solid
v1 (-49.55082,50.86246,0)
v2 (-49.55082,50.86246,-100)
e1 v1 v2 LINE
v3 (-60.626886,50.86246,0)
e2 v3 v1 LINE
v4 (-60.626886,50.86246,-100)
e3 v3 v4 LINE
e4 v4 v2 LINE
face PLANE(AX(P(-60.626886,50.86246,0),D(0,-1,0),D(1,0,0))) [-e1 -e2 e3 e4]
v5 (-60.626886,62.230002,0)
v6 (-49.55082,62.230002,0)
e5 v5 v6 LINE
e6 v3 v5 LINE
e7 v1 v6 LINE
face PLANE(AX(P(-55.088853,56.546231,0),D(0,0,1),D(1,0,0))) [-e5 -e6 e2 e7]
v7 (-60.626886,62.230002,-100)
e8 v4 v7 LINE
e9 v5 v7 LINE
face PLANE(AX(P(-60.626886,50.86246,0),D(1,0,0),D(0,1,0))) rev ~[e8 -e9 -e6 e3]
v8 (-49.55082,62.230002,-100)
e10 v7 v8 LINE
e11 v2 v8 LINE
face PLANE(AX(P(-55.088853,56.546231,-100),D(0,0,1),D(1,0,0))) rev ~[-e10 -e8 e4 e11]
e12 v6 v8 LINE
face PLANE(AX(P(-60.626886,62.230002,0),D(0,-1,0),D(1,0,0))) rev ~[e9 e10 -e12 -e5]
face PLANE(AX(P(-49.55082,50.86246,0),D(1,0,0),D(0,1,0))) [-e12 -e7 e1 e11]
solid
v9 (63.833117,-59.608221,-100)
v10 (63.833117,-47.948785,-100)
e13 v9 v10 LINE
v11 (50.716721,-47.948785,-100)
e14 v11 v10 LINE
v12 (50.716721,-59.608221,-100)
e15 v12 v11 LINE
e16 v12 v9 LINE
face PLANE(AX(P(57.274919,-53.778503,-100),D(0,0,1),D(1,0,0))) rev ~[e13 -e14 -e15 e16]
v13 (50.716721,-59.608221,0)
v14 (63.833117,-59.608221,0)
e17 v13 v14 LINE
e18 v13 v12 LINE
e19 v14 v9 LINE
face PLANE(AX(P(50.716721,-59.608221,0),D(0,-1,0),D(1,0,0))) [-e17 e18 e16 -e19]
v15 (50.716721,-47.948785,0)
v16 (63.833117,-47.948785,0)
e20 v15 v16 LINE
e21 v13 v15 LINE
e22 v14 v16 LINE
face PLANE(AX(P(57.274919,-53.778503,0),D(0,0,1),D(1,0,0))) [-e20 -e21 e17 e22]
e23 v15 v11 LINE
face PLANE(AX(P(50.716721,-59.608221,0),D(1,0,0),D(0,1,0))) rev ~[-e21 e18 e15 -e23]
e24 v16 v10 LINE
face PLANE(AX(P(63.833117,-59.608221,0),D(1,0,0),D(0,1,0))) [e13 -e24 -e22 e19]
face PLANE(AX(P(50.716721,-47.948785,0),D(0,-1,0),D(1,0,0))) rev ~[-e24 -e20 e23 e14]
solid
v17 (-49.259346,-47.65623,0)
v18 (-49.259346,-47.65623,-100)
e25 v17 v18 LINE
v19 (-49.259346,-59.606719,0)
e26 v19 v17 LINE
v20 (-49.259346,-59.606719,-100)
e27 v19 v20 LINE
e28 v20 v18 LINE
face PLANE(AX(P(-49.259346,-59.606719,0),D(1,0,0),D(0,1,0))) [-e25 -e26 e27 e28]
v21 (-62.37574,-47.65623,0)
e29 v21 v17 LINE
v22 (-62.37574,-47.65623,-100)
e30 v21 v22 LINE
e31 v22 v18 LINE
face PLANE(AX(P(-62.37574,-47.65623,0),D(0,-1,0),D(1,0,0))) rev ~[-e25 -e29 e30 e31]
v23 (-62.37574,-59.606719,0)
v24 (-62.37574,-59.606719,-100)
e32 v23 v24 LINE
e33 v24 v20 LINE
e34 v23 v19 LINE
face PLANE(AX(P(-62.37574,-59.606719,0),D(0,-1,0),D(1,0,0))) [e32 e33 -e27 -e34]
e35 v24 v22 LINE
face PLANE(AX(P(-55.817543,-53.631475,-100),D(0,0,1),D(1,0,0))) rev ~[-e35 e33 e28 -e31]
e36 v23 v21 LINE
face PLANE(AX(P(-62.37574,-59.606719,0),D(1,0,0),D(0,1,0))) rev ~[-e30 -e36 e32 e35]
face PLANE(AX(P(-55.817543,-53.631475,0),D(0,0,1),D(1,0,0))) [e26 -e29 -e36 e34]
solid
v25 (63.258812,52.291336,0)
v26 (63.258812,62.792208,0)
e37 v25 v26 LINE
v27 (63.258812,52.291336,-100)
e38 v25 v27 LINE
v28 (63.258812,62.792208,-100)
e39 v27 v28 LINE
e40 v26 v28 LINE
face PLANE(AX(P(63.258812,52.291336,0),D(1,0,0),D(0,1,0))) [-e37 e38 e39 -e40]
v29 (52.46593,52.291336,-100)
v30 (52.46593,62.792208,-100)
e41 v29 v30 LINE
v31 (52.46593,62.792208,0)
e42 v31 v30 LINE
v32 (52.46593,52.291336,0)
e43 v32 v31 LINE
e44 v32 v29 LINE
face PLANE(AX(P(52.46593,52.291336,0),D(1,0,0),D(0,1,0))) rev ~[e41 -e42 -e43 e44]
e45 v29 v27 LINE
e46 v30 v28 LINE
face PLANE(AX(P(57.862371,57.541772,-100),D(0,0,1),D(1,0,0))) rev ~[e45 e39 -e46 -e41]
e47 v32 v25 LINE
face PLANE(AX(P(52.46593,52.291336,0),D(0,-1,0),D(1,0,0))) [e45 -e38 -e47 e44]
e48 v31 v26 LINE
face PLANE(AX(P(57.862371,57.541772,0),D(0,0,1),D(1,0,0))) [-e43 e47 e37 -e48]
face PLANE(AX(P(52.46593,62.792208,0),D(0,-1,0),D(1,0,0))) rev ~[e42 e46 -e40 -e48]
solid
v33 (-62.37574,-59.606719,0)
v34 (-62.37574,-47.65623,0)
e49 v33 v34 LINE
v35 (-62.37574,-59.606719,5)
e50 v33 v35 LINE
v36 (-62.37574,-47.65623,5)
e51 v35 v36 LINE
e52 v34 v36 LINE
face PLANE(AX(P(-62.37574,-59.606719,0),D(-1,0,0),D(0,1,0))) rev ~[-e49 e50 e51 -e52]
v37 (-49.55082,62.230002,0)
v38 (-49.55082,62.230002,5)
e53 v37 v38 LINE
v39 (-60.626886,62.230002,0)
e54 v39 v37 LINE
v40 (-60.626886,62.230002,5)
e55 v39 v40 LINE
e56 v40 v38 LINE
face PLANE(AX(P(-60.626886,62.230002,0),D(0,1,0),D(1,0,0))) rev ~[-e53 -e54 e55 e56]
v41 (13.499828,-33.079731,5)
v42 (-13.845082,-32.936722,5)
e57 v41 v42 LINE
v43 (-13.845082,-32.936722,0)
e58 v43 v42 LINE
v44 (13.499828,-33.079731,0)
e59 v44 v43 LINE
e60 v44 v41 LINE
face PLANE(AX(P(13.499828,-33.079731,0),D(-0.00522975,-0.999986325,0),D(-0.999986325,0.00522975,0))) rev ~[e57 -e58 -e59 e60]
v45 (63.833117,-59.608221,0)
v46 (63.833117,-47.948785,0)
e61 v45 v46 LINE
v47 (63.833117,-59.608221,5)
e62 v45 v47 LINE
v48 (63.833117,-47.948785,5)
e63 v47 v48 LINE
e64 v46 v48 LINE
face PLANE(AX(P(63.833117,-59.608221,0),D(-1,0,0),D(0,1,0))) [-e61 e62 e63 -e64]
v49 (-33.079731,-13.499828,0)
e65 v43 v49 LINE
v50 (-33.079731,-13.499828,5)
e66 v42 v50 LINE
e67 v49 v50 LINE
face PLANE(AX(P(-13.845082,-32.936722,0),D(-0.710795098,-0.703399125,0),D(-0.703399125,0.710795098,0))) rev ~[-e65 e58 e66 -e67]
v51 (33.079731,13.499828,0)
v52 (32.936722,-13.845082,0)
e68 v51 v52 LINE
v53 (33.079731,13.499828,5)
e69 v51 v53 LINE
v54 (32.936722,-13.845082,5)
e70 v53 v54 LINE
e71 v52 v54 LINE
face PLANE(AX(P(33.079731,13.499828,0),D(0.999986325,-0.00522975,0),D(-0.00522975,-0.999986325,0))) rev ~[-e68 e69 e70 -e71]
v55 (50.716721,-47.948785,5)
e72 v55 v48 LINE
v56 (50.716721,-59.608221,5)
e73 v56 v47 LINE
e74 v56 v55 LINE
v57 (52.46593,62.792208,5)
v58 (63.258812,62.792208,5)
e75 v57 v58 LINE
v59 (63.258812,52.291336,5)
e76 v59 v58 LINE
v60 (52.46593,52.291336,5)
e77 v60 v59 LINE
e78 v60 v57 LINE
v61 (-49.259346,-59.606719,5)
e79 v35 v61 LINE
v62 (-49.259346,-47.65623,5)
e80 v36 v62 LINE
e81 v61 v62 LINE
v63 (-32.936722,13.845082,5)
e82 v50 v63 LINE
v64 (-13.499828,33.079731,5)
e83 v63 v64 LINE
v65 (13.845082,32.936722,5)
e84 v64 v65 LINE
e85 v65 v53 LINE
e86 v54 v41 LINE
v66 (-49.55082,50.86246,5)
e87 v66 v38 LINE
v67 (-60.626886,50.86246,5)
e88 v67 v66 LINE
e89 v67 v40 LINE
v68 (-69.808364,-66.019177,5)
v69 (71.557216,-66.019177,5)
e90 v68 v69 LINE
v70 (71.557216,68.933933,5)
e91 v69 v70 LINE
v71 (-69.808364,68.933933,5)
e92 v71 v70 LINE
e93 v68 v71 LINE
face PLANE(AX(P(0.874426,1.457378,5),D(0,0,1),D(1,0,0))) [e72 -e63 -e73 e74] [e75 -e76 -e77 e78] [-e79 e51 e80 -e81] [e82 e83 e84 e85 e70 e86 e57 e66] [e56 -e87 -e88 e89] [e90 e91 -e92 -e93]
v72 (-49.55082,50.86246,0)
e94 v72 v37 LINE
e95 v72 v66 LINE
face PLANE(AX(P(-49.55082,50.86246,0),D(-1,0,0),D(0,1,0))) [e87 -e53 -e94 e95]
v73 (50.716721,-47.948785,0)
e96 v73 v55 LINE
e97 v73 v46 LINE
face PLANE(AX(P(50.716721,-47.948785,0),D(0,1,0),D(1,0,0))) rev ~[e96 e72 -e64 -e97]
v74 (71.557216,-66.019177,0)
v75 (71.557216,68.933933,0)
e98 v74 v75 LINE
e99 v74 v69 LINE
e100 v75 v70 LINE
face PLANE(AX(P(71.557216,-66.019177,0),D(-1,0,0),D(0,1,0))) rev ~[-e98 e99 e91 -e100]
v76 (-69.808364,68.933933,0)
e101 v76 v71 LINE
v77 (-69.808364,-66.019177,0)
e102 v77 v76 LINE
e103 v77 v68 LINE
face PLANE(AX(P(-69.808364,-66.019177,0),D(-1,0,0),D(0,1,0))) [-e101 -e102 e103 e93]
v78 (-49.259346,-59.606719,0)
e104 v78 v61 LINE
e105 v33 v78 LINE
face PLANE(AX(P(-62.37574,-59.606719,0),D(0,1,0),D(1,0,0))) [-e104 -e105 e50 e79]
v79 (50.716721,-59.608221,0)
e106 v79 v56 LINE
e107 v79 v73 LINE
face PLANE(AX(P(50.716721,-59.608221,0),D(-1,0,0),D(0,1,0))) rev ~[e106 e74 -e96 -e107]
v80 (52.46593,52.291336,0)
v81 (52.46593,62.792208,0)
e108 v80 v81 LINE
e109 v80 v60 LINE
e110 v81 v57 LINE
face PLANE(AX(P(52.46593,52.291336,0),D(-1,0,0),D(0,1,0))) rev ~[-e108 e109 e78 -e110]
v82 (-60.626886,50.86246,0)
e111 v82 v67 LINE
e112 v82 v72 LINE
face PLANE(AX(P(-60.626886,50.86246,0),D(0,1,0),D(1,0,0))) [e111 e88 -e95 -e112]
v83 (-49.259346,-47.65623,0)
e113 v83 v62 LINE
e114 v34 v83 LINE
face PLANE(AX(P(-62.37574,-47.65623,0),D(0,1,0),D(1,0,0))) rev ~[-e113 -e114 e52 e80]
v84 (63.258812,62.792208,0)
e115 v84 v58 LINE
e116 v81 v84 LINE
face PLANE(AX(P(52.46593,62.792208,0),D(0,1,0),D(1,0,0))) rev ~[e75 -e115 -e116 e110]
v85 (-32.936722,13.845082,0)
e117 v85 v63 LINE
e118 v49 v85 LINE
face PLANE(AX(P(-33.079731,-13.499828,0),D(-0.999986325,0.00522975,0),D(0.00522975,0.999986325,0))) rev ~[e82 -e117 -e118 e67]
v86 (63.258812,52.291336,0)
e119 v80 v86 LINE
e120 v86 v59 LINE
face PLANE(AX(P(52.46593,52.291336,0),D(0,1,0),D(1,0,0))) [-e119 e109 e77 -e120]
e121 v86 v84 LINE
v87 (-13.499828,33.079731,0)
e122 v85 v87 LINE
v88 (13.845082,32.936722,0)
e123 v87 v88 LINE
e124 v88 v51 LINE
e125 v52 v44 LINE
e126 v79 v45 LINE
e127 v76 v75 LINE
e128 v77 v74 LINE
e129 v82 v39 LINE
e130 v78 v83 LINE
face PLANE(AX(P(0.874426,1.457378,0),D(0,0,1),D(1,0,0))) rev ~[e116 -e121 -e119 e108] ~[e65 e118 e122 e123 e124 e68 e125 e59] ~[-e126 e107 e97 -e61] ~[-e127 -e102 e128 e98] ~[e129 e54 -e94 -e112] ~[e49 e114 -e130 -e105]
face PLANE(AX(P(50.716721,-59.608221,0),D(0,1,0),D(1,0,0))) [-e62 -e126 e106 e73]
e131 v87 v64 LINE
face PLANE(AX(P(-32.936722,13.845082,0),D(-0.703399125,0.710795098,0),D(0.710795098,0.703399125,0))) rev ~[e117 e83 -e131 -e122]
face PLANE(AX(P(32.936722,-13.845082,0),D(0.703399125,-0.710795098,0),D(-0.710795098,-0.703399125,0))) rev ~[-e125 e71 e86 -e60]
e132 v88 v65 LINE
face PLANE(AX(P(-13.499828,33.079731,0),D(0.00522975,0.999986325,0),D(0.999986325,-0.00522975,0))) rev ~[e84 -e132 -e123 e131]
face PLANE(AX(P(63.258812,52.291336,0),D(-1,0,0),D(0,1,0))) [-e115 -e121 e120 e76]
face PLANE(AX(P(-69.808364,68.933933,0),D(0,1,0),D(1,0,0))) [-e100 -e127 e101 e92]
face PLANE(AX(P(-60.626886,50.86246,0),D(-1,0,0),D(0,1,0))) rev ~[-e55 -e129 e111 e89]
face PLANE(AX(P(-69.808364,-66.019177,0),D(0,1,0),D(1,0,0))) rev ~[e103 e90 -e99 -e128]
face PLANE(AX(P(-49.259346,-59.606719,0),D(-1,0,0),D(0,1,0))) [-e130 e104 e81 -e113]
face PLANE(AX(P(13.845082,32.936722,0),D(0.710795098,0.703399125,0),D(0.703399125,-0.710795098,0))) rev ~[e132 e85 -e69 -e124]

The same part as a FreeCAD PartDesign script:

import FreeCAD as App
import Part
import Sketcher

V = App.Vector


def add_polygon(sketch, points):
    """Adds a closed chain of lines whose ends are joined by coincident constraints."""
    first, n = sketch.GeometryCount, len(points)
    for a, b in zip(points, points[1:] + points[:1]):
        sketch.addGeometry(Part.LineSegment(App.Vector(*a, 0), App.Vector(*b, 0)), False)
    for i in range(n):
        sketch.addConstraint(Sketcher.Constraint("Coincident", first + i, 2, first + (i + 1) % n, 1))

doc = App.newDocument("Part")
body = doc.addObject("PartDesign::Body", "Body")

# Sketch on XY plane
sketch1 = doc.addObject("Sketcher::SketchObject", "Sketch")
body.addObject(sketch1)
sketch1.AttachmentSupport = (doc.XY_Plane, [""])
sketch1.MapMode = "FlatFace"
add_polygon(sketch1, [(-70, 69), (-70, -66), (72, -66), (72, 69)])  # lines 0-3
add_polygon(sketch1, [(-49, -60), (-62, -60), (-62, -48), (-49, -48)])  # lines 4-7
add_polygon(sketch1, [(-33, -13), (-33, 14), (-13, 33), (14, 33), (33, 13), (33, -14), (13, -33), (-14, -33)])  # lines 8-15
add_polygon(sketch1, [(64, -60), (51, -60), (51, -48), (64, -48)])  # lines 16-19
add_polygon(sketch1, [(-50, 51), (-61, 51), (-61, 62), (-50, 62)])  # lines 20-23
add_polygon(sketch1, [(63, 52), (52, 52), (52, 63), (63, 63)])  # lines 24-27
sketch1.addConstraint([
    Sketcher.Constraint("Vertical", 0),
    Sketcher.Constraint("Horizontal", 1),
    Sketcher.Constraint("Vertical", 2),
    Sketcher.Constraint("Horizontal", 3),
    Sketcher.Constraint("Horizontal", 4),
    Sketcher.Constraint("Vertical", 5),
    Sketcher.Constraint("Horizontal", 6),
    Sketcher.Constraint("Vertical", 7),
    Sketcher.Constraint("Horizontal", 16),
    Sketcher.Constraint("Vertical", 17),
    Sketcher.Constraint("Horizontal", 18),
    Sketcher.Constraint("Vertical", 19),
    Sketcher.Constraint("Horizontal", 20),
    Sketcher.Constraint("Vertical", 21),
    Sketcher.Constraint("Horizontal", 22),
    Sketcher.Constraint("Vertical", 23),
    Sketcher.Constraint("Horizontal", 24),
    Sketcher.Constraint("Vertical", 25),
    Sketcher.Constraint("Horizontal", 26),
    Sketcher.Constraint("Vertical", 27),
    Sketcher.Constraint("Symmetric", 8, 2, 12, 2, -1, 1),
    Sketcher.Constraint("Symmetric", 9, 2, 13, 2, -1, 1),
    Sketcher.Constraint("Symmetric", 10, 2, 14, 2, -1, 1),
    Sketcher.Constraint("Symmetric", 11, 2, 15, 2, -1, 1),
    Sketcher.Constraint("Perpendicular", 8, 10),
    Sketcher.Constraint("Perpendicular", 9, 11),
    Sketcher.Constraint("Equal", 8, 9),
    Sketcher.Constraint("Equal", 9, 10),
    Sketcher.Constraint("Equal", 10, 11),
    Sketcher.Constraint("DistanceY", -1, 1, 21, 2, 62.230002),
    Sketcher.Constraint("DistanceX", 12, 2, 16, 2, 17.779999),
    Sketcher.Constraint("DistanceX", 1, 1, 1, 2, 141.36558),
    Sketcher.Constraint("DistanceX", 24, 2, 24, 1, 10.792881),
    Sketcher.Constraint("DistanceY", 0, 2, 0, 1, 134.953111),
    Sketcher.Constraint("DistanceY", 5, 1, 5, 2, 11.950489),
    Sketcher.Constraint("DistanceY", 21, 1, 21, 2, 11.367541),
    Sketcher.Constraint("DistanceY", 25, 1, 25, 2, 10.500871),
    Sketcher.Constraint("DistanceY", 7, 2, 8, 2, 73.451802),
    Sketcher.Constraint("DistanceY", 6, 2, 13, 2, 14.576499),
    Sketcher.Constraint("DistanceY", 16, 2, 14, 2, 26.671499),
    Sketcher.Constraint("DistanceX", 18, 2, 1, 2, 7.724099),
    Sketcher.Constraint("DistanceX", 11, 2, 24, 2, 19.386199),
    Sketcher.Constraint("DistanceX", 4, 2, 4, 1, 13.116393),
    Sketcher.Constraint("DistanceX", 16, 2, 16, 1, 13.116396),
    Sketcher.Constraint("DistanceX", 20, 2, 20, 1, 11.076067),
    Sketcher.Constraint("DistanceY", 17, 1, 17, 2, 11.659436),
    Sketcher.Constraint("DistanceX", 4, 2, -1, 1, 62.37574),
    Sketcher.Constraint("DistanceY", 4, 2, -1, 1, 59.606719),
    Sketcher.Constraint("DistanceX", 9, 2, -1, 1, 13.499828),
    Sketcher.Constraint("DistanceX", 22, 2, -1, 1, 49.55082),
    Sketcher.Constraint("DistanceY", 0, 2, 4, 2, 6.412458),
    Sketcher.Constraint("DistanceY", 11, 2, 24, 2, 38.791508),
])
pad1 = doc.addObject("PartDesign::Pad", "Pad")
body.addObject(pad1)
pad1.Profile = sketch1
pad1.Length = 5

# Sketch on XY plane
sketch2 = doc.addObject("Sketcher::SketchObject", "Sketch001")
body.addObject(sketch2)
sketch2.AttachmentSupport = (doc.XY_Plane, [""])
sketch2.MapMode = "FlatFace"
add_polygon(sketch2, [(-70, 69), (-70, -66), (72, -66), (72, 69)])  # lines 0-3
add_polygon(sketch2, [(-49, -60), (-62, -60), (-62, -48), (-49, -48)])  # lines 4-7
add_polygon(sketch2, [(-33, -13), (-33, 14), (-13, 33), (14, 33), (33, 13), (33, -14), (13, -33), (-14, -33)])  # lines 8-15
add_polygon(sketch2, [(64, -60), (51, -60), (51, -48), (64, -48)])  # lines 16-19
add_polygon(sketch2, [(-50, 51), (-61, 51), (-61, 62), (-50, 62)])  # lines 20-23
add_polygon(sketch2, [(63, 52), (52, 52), (52, 63), (63, 63)])  # lines 24-27
sketch2.addConstraint([
    Sketcher.Constraint("Vertical", 0),
    Sketcher.Constraint("Horizontal", 1),
    Sketcher.Constraint("Vertical", 2),
    Sketcher.Constraint("Horizontal", 3),
    Sketcher.Constraint("Horizontal", 4),
    Sketcher.Constraint("Vertical", 5),
    Sketcher.Constraint("Horizontal", 6),
    Sketcher.Constraint("Vertical", 7),
    Sketcher.Constraint("Horizontal", 16),
    Sketcher.Constraint("Vertical", 17),
    Sketcher.Constraint("Horizontal", 18),
    Sketcher.Constraint("Vertical", 19),
    Sketcher.Constraint("Horizontal", 20),
    Sketcher.Constraint("Vertical", 21),
    Sketcher.Constraint("Horizontal", 22),
    Sketcher.Constraint("Vertical", 23),
    Sketcher.Constraint("Horizontal", 24),
    Sketcher.Constraint("Vertical", 25),
    Sketcher.Constraint("Horizontal", 26),
    Sketcher.Constraint("Vertical", 27),
    Sketcher.Constraint("Symmetric", 8, 2, 12, 2, -1, 1),
    Sketcher.Constraint("Symmetric", 9, 2, 13, 2, -1, 1),
    Sketcher.Constraint("Symmetric", 10, 2, 14, 2, -1, 1),
    Sketcher.Constraint("Symmetric", 11, 2, 15, 2, -1, 1),
    Sketcher.Constraint("Perpendicular", 8, 10),
    Sketcher.Constraint("Perpendicular", 9, 11),
    Sketcher.Constraint("Equal", 8, 9),
    Sketcher.Constraint("Equal", 9, 10),
    Sketcher.Constraint("Equal", 10, 11),
    Sketcher.Constraint("DistanceY", -1, 1, 21, 2, 62.230002),
    Sketcher.Constraint("DistanceX", 12, 2, 16, 2, 17.779999),
    Sketcher.Constraint("DistanceX", 1, 1, 1, 2, 141.36558),
    Sketcher.Constraint("DistanceX", 24, 2, 24, 1, 10.792881),
    Sketcher.Constraint("DistanceY", 0, 2, 0, 1, 134.953111),
    Sketcher.Constraint("DistanceY", 5, 1, 5, 2, 11.950489),
    Sketcher.Constraint("DistanceY", 21, 1, 21, 2, 11.367541),
    Sketcher.Constraint("DistanceY", 25, 1, 25, 2, 10.500871),
    Sketcher.Constraint("DistanceY", 7, 2, 8, 2, 73.451802),
    Sketcher.Constraint("DistanceY", 6, 2, 13, 2, 14.576499),
    Sketcher.Constraint("DistanceY", 16, 2, 14, 2, 26.671499),
    Sketcher.Constraint("DistanceX", 18, 2, 1, 2, 7.724099),
    Sketcher.Constraint("DistanceX", 11, 2, 24, 2, 19.386199),
    Sketcher.Constraint("DistanceX", 4, 2, 4, 1, 13.116393),
    Sketcher.Constraint("DistanceX", 16, 2, 16, 1, 13.116396),
    Sketcher.Constraint("DistanceX", 20, 2, 20, 1, 11.076067),
    Sketcher.Constraint("DistanceY", 17, 1, 17, 2, 11.659436),
    Sketcher.Constraint("DistanceX", 4, 2, -1, 1, 62.37574),
    Sketcher.Constraint("DistanceY", 4, 2, -1, 1, 59.606719),
    Sketcher.Constraint("DistanceX", 9, 2, -1, 1, 13.499828),
    Sketcher.Constraint("DistanceX", 22, 2, -1, 1, 49.55082),
    Sketcher.Constraint("DistanceY", 0, 2, 4, 2, 6.412458),
    Sketcher.Constraint("DistanceY", 11, 2, 24, 2, 38.791508),
])
pad2 = doc.addObject("PartDesign::Pad", "Pad001")
body.addObject(pad2)
pad2.Profile = sketch2
pad2.Length = 5
body2 = doc.addObject("PartDesign::Body", "Body001")
body2.AllowCompound = True

# Sketch on XY plane
sketch3 = doc.addObject("Sketcher::SketchObject", "Sketch002")
body2.addObject(sketch3)
sketch3.AttachmentSupport = (doc.getObject("XY_Plane001"), [""])
sketch3.MapMode = "FlatFace"
add_polygon(sketch3, [(-61, 62), (-61, 51), (-50, 51), (-50, 62)])  # lines 0-3
add_polygon(sketch3, [(-62, -48), (-62, -60), (-49, -60), (-49, -48)])  # lines 4-7
add_polygon(sketch3, [(51, -48), (51, -60), (64, -60), (64, -48)])  # lines 8-11
add_polygon(sketch3, [(52, 63), (52, 52), (63, 52), (63, 63)])  # lines 12-15
sketch3.addConstraint([
    Sketcher.Constraint("Vertical", 0),
    Sketcher.Constraint("Horizontal", 1),
    Sketcher.Constraint("Vertical", 2),
    Sketcher.Constraint("Horizontal", 3),
    Sketcher.Constraint("Vertical", 4),
    Sketcher.Constraint("Horizontal", 5),
    Sketcher.Constraint("Vertical", 6),
    Sketcher.Constraint("Horizontal", 7),
    Sketcher.Constraint("Vertical", 8),
    Sketcher.Constraint("Horizontal", 9),
    Sketcher.Constraint("Vertical", 10),
    Sketcher.Constraint("Horizontal", 11),
    Sketcher.Constraint("Vertical", 12),
    Sketcher.Constraint("Horizontal", 13),
    Sketcher.Constraint("Vertical", 14),
    Sketcher.Constraint("Horizontal", 15),
    Sketcher.Constraint("DistanceY", -1, 1, 2, 2, 62.230002),
    Sketcher.Constraint("DistanceX", 13, 1, 13, 2, 10.792881),
    Sketcher.Constraint("DistanceY", 0, 2, 0, 1, 11.367541),
    Sketcher.Constraint("DistanceY", 4, 2, 4, 1, 11.950489),
    Sketcher.Constraint("DistanceY", 12, 2, 12, 1, 10.500871),
    Sketcher.Constraint("DistanceY", 8, 2, 5, 2, 0.001502),
    Sketcher.Constraint("DistanceX", 1, 1, 1, 2, 11.076067),
    Sketcher.Constraint("DistanceX", 5, 1, 5, 2, 13.116393),
    Sketcher.Constraint("DistanceX", 9, 1, 9, 2, 13.116396),
    Sketcher.Constraint("DistanceY", 8, 2, 8, 1, 11.659436),
    Sketcher.Constraint("DistanceX", 1, 2, -1, 1, 49.55082),
    Sketcher.Constraint("DistanceX", 4, 2, -1, 1, 62.37574),
    Sketcher.Constraint("DistanceY", 4, 2, -1, 1, 59.606719),
    Sketcher.Constraint("DistanceX", -1, 1, 8, 2, 50.716721),
    Sketcher.Constraint("DistanceX", -1, 1, 12, 2, 52.46593),
    Sketcher.Constraint("DistanceY", 11, 2, 12, 2, 100.240122),
])
pad3 = doc.addObject("PartDesign::Pad", "Pad002")
body2.addObject(pad3)
pad3.Profile = sketch3
pad3.Length = 100
pad3.Reversed = True

doc.recompute()
